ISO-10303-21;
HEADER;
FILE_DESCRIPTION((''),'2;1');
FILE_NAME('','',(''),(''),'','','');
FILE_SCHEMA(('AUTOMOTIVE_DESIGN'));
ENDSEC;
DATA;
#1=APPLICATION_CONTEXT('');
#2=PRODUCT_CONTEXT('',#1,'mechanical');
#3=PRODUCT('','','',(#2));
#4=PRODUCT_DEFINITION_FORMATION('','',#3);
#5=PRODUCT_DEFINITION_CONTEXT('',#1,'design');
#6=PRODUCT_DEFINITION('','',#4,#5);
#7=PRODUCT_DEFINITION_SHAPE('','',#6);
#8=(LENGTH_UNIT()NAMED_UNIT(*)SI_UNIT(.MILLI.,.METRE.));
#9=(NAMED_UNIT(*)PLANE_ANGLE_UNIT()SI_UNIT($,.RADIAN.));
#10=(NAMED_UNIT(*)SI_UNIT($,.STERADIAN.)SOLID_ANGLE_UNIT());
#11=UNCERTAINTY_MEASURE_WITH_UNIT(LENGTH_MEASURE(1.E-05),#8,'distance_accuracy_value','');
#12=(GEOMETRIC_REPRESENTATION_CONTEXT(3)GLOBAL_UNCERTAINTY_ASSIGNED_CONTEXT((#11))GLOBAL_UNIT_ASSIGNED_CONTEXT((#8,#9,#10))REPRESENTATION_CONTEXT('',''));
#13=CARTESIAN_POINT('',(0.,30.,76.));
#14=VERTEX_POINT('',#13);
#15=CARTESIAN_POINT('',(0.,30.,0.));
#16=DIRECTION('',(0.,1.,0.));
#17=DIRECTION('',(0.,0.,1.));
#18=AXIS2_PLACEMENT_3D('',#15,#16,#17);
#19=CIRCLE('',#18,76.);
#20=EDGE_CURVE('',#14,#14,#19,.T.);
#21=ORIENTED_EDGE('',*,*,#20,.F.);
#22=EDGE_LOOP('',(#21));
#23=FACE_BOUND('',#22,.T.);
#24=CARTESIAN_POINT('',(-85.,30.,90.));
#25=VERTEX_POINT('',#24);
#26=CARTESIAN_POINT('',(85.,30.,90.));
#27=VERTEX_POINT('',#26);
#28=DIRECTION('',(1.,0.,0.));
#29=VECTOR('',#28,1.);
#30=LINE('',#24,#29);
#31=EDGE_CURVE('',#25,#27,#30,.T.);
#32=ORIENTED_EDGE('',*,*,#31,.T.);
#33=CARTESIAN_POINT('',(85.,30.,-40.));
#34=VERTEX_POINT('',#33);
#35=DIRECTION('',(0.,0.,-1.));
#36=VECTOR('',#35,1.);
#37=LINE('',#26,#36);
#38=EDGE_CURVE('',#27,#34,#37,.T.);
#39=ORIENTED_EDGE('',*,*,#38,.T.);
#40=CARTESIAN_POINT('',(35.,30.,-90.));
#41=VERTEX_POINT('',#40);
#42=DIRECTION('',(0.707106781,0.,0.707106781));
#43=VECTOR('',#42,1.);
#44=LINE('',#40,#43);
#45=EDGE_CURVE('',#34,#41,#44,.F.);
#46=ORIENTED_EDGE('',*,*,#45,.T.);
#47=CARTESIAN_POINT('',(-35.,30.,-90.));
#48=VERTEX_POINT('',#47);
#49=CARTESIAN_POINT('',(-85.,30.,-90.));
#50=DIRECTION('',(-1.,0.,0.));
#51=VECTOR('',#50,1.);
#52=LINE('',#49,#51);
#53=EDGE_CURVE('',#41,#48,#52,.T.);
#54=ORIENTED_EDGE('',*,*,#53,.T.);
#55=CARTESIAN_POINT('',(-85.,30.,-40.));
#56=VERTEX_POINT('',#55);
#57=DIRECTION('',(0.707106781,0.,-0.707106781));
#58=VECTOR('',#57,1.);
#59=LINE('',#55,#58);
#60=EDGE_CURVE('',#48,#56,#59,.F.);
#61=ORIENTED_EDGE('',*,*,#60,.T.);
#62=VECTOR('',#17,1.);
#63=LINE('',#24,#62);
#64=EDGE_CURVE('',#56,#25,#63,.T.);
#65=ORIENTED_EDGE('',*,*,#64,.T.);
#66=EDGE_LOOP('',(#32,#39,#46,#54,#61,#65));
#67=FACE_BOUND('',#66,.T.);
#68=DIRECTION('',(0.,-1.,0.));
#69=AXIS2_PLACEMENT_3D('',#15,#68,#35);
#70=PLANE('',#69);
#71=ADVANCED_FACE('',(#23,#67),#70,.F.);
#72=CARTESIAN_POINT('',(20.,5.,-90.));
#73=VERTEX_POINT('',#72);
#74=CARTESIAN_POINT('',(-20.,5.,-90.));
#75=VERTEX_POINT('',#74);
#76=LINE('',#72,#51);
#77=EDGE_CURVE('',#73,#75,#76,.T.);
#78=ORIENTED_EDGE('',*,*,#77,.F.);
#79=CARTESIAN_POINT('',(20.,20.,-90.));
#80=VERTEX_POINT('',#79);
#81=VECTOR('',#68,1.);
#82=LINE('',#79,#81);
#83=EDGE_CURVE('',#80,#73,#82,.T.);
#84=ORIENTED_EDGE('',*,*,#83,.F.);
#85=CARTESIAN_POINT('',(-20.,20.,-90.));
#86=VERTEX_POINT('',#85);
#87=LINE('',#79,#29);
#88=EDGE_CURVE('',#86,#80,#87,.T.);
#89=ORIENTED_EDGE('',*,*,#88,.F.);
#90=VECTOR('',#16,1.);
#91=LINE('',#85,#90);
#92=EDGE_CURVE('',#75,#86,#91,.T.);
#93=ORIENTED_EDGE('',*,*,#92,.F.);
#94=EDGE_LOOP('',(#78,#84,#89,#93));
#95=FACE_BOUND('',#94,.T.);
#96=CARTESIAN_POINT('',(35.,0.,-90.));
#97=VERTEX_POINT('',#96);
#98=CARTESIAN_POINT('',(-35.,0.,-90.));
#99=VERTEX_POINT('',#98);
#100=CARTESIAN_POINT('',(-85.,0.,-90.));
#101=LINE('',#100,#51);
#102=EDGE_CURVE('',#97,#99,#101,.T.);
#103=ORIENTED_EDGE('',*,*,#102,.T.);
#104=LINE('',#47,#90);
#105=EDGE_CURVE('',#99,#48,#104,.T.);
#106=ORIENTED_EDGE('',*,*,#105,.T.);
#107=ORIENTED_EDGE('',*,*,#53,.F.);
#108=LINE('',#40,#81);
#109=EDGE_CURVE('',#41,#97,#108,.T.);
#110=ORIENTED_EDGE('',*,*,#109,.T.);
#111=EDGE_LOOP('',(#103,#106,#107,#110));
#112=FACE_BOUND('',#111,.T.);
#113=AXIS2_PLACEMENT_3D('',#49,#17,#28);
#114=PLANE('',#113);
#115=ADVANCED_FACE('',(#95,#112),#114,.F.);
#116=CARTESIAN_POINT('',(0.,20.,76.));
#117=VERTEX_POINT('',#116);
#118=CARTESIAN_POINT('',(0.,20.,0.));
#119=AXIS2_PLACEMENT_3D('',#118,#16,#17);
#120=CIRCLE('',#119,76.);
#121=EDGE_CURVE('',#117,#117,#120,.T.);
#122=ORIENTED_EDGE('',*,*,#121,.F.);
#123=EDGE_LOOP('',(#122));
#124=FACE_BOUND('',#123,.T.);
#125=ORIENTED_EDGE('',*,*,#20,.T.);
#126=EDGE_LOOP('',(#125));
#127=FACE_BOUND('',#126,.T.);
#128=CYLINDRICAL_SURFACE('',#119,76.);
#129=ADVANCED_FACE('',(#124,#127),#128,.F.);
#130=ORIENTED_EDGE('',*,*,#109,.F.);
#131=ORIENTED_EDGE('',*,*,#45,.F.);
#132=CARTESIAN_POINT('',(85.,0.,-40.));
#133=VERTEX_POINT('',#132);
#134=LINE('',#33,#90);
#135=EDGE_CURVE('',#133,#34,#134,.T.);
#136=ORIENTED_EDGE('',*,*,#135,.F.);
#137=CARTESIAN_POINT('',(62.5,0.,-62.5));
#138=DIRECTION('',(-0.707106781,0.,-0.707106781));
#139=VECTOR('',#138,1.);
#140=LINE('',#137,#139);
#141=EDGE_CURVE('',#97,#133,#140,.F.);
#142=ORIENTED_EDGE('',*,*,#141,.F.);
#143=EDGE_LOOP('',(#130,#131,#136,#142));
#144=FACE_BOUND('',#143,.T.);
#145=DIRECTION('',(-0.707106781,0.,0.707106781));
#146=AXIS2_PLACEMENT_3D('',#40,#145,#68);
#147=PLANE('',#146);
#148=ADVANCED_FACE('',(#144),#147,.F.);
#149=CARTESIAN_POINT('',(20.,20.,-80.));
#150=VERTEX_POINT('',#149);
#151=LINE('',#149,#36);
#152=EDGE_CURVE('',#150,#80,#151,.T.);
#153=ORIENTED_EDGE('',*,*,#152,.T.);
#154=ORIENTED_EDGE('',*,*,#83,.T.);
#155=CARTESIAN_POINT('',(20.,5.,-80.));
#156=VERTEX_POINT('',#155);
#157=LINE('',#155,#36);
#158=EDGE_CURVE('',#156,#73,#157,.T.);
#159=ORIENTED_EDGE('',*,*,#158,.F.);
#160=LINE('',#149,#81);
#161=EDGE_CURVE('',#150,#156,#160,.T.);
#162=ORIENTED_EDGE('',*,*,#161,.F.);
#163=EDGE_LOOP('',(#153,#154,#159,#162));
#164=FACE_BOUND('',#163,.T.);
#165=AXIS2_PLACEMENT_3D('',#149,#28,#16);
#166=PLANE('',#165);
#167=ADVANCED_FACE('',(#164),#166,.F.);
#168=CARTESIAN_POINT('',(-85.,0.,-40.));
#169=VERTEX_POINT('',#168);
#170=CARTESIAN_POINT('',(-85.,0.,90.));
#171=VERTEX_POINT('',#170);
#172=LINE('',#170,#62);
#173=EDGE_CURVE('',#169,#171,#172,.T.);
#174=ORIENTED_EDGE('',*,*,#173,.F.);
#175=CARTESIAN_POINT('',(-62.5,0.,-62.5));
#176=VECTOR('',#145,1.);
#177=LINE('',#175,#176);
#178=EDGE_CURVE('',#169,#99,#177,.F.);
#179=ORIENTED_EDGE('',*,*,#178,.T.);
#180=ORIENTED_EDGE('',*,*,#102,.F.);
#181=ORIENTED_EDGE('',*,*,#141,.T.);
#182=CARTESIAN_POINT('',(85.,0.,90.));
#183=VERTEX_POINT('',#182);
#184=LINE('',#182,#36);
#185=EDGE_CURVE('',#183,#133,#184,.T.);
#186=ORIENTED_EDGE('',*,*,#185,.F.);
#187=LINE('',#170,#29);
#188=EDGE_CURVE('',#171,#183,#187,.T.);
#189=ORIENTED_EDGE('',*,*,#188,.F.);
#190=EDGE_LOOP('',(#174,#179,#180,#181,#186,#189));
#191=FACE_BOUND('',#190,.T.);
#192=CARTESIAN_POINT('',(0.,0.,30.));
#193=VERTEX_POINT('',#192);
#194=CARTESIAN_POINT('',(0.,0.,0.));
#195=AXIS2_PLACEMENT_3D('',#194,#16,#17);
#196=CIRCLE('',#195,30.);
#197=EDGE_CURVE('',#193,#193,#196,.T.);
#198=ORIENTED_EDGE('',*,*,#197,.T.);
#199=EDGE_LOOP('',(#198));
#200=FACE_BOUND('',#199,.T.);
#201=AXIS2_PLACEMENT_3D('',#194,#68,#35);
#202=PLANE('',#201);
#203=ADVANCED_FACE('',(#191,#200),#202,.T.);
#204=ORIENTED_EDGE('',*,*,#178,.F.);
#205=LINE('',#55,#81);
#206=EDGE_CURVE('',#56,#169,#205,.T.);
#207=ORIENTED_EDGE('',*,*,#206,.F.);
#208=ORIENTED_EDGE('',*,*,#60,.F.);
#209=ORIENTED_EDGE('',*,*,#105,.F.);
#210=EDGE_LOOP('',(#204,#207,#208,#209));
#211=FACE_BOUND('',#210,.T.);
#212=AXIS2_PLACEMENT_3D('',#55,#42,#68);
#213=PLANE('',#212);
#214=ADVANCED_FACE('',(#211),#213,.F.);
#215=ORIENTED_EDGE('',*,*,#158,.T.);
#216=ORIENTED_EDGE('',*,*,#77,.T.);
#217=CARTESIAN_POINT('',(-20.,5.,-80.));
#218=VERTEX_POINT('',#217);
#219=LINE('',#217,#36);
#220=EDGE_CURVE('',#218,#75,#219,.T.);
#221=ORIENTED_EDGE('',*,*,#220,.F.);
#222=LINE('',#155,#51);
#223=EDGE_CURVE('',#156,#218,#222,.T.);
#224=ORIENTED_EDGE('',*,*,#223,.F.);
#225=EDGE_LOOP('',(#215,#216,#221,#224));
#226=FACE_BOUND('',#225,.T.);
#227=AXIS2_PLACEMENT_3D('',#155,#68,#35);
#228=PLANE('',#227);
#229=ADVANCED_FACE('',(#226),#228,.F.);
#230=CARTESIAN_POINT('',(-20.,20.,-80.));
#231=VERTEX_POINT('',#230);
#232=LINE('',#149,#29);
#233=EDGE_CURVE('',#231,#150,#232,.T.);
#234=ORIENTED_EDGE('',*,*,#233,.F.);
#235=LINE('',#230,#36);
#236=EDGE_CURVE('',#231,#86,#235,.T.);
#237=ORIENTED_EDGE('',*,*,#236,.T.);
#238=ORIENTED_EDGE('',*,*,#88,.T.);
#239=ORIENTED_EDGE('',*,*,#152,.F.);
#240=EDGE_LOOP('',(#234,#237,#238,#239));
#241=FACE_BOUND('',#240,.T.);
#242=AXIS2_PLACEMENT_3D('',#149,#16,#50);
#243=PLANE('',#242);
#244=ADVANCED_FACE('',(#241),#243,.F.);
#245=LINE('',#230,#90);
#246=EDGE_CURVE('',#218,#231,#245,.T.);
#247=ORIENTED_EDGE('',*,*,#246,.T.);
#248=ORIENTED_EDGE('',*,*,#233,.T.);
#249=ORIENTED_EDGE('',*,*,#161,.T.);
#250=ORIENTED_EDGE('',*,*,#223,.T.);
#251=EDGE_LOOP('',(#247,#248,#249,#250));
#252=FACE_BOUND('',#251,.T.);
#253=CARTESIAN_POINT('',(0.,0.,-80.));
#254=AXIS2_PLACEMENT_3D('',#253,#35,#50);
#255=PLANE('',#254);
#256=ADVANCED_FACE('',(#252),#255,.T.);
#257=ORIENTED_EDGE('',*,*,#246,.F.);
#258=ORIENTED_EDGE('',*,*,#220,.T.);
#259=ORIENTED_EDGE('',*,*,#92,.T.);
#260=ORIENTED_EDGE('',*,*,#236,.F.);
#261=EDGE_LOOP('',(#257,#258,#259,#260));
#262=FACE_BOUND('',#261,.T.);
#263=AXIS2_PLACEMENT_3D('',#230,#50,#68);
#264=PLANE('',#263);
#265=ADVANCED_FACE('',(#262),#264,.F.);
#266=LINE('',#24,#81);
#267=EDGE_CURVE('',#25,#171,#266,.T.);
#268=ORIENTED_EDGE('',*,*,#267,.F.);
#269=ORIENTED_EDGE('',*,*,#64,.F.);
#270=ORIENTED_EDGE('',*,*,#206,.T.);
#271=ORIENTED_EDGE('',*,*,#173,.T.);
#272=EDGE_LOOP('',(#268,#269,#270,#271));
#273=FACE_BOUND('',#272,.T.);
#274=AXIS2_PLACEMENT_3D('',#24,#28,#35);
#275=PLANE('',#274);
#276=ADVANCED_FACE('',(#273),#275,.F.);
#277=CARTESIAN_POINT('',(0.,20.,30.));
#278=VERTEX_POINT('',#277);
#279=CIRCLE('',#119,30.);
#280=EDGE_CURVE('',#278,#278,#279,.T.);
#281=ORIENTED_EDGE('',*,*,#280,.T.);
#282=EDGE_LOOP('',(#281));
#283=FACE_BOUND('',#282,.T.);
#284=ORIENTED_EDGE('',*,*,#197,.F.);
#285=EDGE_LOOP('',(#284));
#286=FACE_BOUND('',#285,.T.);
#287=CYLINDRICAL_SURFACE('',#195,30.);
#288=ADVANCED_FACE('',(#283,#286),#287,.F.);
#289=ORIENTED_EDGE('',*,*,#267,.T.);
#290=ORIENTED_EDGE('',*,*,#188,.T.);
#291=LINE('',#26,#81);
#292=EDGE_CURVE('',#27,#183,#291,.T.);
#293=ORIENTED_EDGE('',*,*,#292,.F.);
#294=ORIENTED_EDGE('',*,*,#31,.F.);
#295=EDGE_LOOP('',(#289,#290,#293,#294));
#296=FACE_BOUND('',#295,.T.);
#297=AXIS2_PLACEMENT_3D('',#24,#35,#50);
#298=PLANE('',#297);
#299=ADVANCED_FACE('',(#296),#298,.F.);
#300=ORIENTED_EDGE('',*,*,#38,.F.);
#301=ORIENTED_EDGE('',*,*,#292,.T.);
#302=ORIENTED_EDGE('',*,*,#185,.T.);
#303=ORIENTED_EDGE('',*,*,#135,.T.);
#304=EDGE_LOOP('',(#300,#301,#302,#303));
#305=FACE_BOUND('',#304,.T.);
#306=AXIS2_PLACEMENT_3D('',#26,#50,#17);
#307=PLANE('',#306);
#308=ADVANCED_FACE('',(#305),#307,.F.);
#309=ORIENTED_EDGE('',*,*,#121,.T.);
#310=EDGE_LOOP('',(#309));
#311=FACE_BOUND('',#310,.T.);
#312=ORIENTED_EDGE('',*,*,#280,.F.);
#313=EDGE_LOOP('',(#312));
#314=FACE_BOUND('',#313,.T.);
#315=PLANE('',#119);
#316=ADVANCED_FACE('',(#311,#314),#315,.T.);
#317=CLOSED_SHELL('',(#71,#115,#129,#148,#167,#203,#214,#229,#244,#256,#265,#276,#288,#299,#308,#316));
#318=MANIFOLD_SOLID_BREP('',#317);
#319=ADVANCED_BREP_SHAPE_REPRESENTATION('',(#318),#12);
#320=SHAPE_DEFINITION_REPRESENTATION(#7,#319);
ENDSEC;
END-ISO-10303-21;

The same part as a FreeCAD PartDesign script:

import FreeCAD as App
import Part
import Sketcher

V = App.Vector
Q = App.Units.Quantity


def edges_at(feature, points):
    """Names of the edges that pass closest to the given points."""
    edges = feature.Shape.Edges
    near = lambda p: min(range(len(edges)), key=lambda i: edges[i].distToShape(Part.Vertex(*p))[0])
    return sorted({f"Edge{near(p) + 1}" for p in points})


def add_polygon(sketch, points):
    """Adds a closed chain of lines whose ends are joined by coincident constraints."""
    first, n = sketch.GeometryCount, len(points)
    for a, b in zip(points, points[1:] + points[:1]):
        sketch.addGeometry(Part.LineSegment(App.Vector(*a, 0), App.Vector(*b, 0)), False)
    for i in range(n):
        sketch.addConstraint(Sketcher.Constraint("Coincident", first + i, 2, first + (i + 1) % n, 1))

doc = App.newDocument("Part")
body = doc.addObject("PartDesign::Body", "Body")

sketch1 = body.newObject("Sketcher::SketchObject", "Sketch")
sketch1.AttachmentSupport = (doc.getObject("XZ_Plane"), [""])
sketch1.MapMode = "FlatFace"
add_polygon(sketch1, [(-85, -90), (-85, 90), (85, 90), (85, -90)])
sketch1.addConstraint([
    Sketcher.Constraint("Vertical", 0),
    Sketcher.Constraint("Horizontal", 1),
    Sketcher.Constraint("Vertical", 2),
    Sketcher.Constraint("Horizontal", 3),
    Sketcher.Constraint("Symmetric", 0, 2, 2, 2, -1, 1),
    Sketcher.Constraint("DistanceX", 1, 1, 1, 2, Q("170 mm")),
    Sketcher.Constraint("DistanceY", 0, 1, 0, 2, Q("180 mm")),
])
pad1 = body.newObject("PartDesign::Pad", "Pad")
pad1.Profile = sketch1
pad1.Length = 30
pad1.Reversed = True
doc.recompute()

chamfer = body.newObject("PartDesign::Chamfer", "Chamfer")
chamfer.Base = (pad1, edges_at(pad1, [(-85, 15, -90), (85, 15, -90)]))
chamfer.Size = 50

sketch2 = body.newObject("Sketcher::SketchObject", "Sketch001")
sketch2.AttachmentSupport = (doc.getObject("XZ_Plane"), [""])
sketch2.MapMode = "FlatFace"
sketch2.AttachmentOffset = App.Placement(V(0, 0, -30), App.Rotation())
sketch2.addGeometry(Part.Circle(V(0, 0, 0), V(0, 0, 1), 76), False)
sketch2.addConstraint([
    Sketcher.Constraint("Coincident", 0, 3, -1, 1),
    Sketcher.Constraint("Diameter", 0, Q("152 mm")),
])
pocket1 = body.newObject("PartDesign::Pocket", "Pocket")
pocket1.Profile = sketch2
pocket1.Length = 10
pocket1.Reversed = True

sketch3 = body.newObject("Sketcher::SketchObject", "Sketch002")
sketch3.AttachmentSupport = (doc.getObject("XZ_Plane"), [""])
sketch3.MapMode = "FlatFace"
sketch3.AttachmentOffset = App.Placement(V(0, 0, -20), App.Rotation())
sketch3.addGeometry(Part.Circle(V(0, 0, 0), V(0, 0, 1), 30), False)
sketch3.addConstraint([
    Sketcher.Constraint("Coincident", 0, 3, -1, 1),
    Sketcher.Constraint("Diameter", 0, Q("60 mm")),
])
pocket2 = body.newObject("PartDesign::Pocket", "Pocket001")
pocket2.Profile = sketch3
pocket2.Type = "ThroughAll"
pocket2.Reversed = True

sketch4 = body.newObject("Sketcher::SketchObject", "Sketch003")
sketch4.AttachmentSupport = (doc.getObject("XY_Plane"), [""])
sketch4.MapMode = "FlatFace"
sketch4.AttachmentOffset = App.Placement(V(0, 0, -90), App.Rotation())
add_polygon(sketch4, [(20, 20), (20, 5), (-20, 5), (-20, 20)])
sketch4.addConstraint([
    Sketcher.Constraint("Vertical", 0),
    Sketcher.Constraint("Horizontal", 1),
    Sketcher.Constraint("Vertical", 2),
    Sketcher.Constraint("Horizontal", 3),
    Sketcher.Constraint("DistanceX", 1, 2, 1, 1, Q("40 mm")),
    Sketcher.Constraint("DistanceY", 0, 2, 0, 1, Q("15 mm")),
    Sketcher.Constraint("DistanceX", -1, 1, 0, 2, Q("20 mm")),
    Sketcher.Constraint("DistanceY", -1, 1, 0, 2, Q("5 mm")),
])
pocket3 = body.newObject("PartDesign::Pocket", "Pocket002")
pocket3.Profile = sketch4
pocket3.Length = 10
pocket3.Reversed = True

doc.recompute()
